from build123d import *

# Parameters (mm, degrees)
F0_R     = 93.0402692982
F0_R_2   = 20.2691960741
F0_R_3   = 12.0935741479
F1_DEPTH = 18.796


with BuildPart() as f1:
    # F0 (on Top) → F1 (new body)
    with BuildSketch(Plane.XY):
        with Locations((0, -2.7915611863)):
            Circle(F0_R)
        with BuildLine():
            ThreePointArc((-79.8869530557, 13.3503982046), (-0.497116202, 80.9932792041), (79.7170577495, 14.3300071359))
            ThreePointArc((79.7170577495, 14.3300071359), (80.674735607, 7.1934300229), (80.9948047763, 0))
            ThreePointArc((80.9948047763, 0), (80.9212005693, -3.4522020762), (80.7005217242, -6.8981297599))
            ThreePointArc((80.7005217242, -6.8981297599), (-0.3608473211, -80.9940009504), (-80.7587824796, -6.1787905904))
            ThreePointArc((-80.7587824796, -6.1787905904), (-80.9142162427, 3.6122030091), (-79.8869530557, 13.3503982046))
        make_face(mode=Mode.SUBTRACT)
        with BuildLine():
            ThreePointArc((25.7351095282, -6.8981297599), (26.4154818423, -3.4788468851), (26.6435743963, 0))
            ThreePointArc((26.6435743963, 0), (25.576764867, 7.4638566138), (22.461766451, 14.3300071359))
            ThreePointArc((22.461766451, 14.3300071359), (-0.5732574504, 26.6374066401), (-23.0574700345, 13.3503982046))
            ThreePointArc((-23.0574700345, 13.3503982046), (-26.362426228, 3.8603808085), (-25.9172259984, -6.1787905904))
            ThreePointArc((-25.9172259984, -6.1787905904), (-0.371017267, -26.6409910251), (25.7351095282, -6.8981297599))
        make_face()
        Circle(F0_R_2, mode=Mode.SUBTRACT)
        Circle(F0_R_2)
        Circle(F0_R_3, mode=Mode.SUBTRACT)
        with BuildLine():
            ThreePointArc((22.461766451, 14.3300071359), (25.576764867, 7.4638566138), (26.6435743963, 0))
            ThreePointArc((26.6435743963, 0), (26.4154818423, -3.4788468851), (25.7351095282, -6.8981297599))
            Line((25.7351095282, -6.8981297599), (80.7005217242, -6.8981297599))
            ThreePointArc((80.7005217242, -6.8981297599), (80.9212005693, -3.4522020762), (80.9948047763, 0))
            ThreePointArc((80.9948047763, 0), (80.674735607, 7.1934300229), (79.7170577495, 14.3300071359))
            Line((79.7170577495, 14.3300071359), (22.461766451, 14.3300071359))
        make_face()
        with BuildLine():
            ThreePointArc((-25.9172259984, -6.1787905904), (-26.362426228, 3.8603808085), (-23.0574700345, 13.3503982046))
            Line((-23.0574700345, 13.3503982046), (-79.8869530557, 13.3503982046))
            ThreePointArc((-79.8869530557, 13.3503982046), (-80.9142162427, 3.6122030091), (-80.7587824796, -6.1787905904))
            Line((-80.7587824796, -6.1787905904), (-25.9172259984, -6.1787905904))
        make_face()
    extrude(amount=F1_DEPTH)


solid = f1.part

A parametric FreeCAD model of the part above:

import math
import FreeCAD as App
import Part
import Sketcher
from FreeCAD import Vector
Q = App.Units.Quantity

doc = App.newDocument("Part")
body = doc.addObject("PartDesign::Body", "Body")

sketch1 = doc.addObject("Sketcher::SketchObject", "Sketch")
body.addObject(sketch1)
sketch1.AttachmentSupport = (doc.XY_Plane, [""])
sketch1.MapMode = "FlatFace"
sketch1.addGeometry([
    Part.Circle(Vector(0, -3, 0), Vector(0, 0, 1), 93),
    Part.ArcOfCircle(Part.Circle(Vector(0, 0, 0), Vector(0, 0, 1), 81), math.radians(10), math.radians(171)),
    Part.LineSegment(Vector(80, 14, 0), Vector(22, 14, 0)),
    Part.ArcOfCircle(Part.Circle(Vector(0, 0, 0), Vector(0, 0, 1), 27), math.radians(33), math.radians(150)),
    Part.LineSegment(Vector(-23, 13, 0), Vector(-80, 13, 0)),
    Part.ArcOfCircle(Part.Circle(Vector(0, 0, 0), Vector(0, 0, 1), 27), math.radians(-167), math.radians(-15)),
    Part.LineSegment(Vector(26, -7, 0), Vector(81, -7, 0)),
    Part.ArcOfCircle(Part.Circle(Vector(0, 0, 0), Vector(0, 0, 1), 81), math.radians(-176), math.radians(-5)),
    Part.LineSegment(Vector(-81, -6, 0), Vector(-26, -6, 0)),
    Part.Circle(Vector(0, 0, 0), Vector(0, 0, 1), 12),
], False)
sketch1.addConstraint([
    Sketcher.Constraint("Coincident", 1, 1, 2, 1),
    Sketcher.Constraint("Coincident", 2, 2, 3, 1),
    Sketcher.Constraint("Coincident", 3, 2, 4, 1),
    Sketcher.Constraint("Coincident", 4, 2, 1, 2),
    Sketcher.Constraint("Coincident", 5, 2, 6, 1),
    Sketcher.Constraint("Coincident", 6, 2, 7, 2),
    Sketcher.Constraint("Coincident", 7, 1, 8, 1),
    Sketcher.Constraint("Coincident", 8, 2, 5, 1),
    Sketcher.Constraint("Horizontal", 2),
    Sketcher.Constraint("Horizontal", 4),
    Sketcher.Constraint("Horizontal", 6),
    Sketcher.Constraint("Horizontal", 8),
    Sketcher.Constraint("Coincident", 1, 3, -1, 1),
    Sketcher.Constraint("Coincident", 3, 3, -1, 1),
    Sketcher.Constraint("Coincident", 5, 3, -1, 1),
    Sketcher.Constraint("Coincident", 7, 3, -1, 1),
    Sketcher.Constraint("Coincident", 9, 3, -1, 1),
    Sketcher.Constraint("Equal", 3, 5),
    Sketcher.Constraint("Equal", 1, 7),
    Sketcher.Constraint("PointOnObject", 0, 3, -2),
    Sketcher.Constraint("Diameter", 0, Q("186.080539 mm")),
    Sketcher.Constraint("Diameter", 9, Q("24.187148 mm")),
    Sketcher.Constraint("Radius", 1, Q("80.994805 mm")),
    Sketcher.Constraint("Radius", 3, Q("26.643574 mm")),
    Sketcher.Constraint("DistanceX", 2, 2, 2, 1, Q("57.255291 mm")),
    Sketcher.Constraint("DistanceY", -1, 1, 3, 2, Q("13.350398 mm")),
    Sketcher.Constraint("DistanceX", 6, 1, 6, 2, Q("54.965412 mm")),
    Sketcher.Constraint("DistanceX", 8, 1, 8, 2, Q("54.841556 mm")),
    Sketcher.Constraint("DistanceY", 0, 3, -1, 1, Q("2.791561 mm")),
])
pad1 = doc.addObject("PartDesign::Pad", "Pad")
body.addObject(pad1)
pad1.Profile = sketch1
pad1.Length = Q("0.74 in")

doc.recompute()
